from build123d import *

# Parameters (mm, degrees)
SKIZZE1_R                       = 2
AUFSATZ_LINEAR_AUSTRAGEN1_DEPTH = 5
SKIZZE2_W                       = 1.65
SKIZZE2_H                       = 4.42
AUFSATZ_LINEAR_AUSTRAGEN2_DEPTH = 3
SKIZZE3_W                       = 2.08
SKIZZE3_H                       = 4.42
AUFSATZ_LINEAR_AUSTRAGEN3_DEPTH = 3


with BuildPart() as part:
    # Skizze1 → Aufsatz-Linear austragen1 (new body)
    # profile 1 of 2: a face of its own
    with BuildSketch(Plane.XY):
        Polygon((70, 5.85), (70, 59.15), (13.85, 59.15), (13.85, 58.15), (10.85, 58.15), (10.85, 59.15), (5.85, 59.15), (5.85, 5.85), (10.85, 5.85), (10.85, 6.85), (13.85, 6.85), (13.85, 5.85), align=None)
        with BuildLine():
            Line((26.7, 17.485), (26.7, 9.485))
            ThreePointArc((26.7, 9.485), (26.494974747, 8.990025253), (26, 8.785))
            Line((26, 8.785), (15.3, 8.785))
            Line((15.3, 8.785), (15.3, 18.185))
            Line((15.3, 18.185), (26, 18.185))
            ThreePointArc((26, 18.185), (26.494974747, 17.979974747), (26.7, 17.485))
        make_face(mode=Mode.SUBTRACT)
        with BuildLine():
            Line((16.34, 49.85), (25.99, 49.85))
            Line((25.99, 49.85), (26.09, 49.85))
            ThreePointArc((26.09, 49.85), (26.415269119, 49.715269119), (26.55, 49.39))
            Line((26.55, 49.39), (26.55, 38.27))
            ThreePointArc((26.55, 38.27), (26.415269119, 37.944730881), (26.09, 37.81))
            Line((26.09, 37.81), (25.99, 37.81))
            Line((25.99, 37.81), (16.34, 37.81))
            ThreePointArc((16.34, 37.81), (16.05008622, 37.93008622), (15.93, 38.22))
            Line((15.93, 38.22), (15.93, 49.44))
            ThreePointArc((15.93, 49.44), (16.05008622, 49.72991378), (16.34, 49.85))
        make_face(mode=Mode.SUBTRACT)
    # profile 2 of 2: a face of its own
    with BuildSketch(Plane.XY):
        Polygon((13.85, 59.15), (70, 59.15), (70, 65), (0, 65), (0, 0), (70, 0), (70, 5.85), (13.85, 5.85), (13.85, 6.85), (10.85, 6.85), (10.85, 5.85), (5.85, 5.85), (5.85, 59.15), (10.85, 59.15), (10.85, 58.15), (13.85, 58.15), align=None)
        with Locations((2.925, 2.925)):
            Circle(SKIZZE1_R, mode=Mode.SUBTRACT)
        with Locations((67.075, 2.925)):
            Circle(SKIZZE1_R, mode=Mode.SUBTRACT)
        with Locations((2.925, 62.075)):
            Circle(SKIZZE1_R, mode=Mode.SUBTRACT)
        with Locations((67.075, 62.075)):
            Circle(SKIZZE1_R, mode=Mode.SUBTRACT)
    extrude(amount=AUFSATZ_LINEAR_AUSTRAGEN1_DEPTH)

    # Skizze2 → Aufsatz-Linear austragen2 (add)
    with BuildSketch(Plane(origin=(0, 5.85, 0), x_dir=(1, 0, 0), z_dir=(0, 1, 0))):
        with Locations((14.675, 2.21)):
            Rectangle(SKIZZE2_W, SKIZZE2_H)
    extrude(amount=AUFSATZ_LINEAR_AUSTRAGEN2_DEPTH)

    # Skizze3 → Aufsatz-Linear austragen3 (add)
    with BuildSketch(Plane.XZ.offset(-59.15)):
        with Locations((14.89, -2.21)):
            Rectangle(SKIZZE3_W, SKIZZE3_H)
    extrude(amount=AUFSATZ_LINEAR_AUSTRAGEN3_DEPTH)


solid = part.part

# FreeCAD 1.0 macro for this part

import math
import FreeCAD as App
import Part
import Sketcher
from FreeCAD import Vector


def add_polygon(sketch, points):
    """Adds a closed chain of lines whose ends are joined by coincident constraints."""
    first, n = sketch.GeometryCount, len(points)
    for a, b in zip(points, points[1:] + points[:1]):
        sketch.addGeometry(Part.LineSegment(App.Vector(*a, 0), App.Vector(*b, 0)), False)
    for i in range(n):
        sketch.addConstraint(Sketcher.Constraint("Coincident", first + i, 2, first + (i + 1) % n, 1))

doc = App.newDocument("Part")
params = doc.addObject("Spreadsheet::Sheet", "Params")
for row, (alias, value) in enumerate([
    ("sketch1_diameter", "4 mm"),
    ("sketch1_radius", "0.7 mm"),
    ("sketch1_width", "70 mm"),
    ("sketch1_height", "65 mm"),
    ("sketch1_height2", "8 mm"),
    ("pad1_length", "5 mm"),
    ("sketch2_width", "1.65 mm"),
    ("sketch2_height", "4.42 mm"),
    ("pad2_length", "3 mm"),
    ("sketch3_width", "2.08 mm"),
    ("sketch3_height", "4.42 mm"),
    ("pad3_length", "3 mm"),
], start=1):
    params.set(f"A{row}", alias)
    params.set(f"B{row}", "=" + value)
    params.setAlias(f"B{row}", alias)

body = doc.addObject("PartDesign::Body", "Body")

# Sketch on XY plane
sketch1 = doc.addObject("Sketcher::SketchObject", "Sketch")
body.addObject(sketch1)
sketch1.AttachmentSupport = (doc.XY_Plane, [""])
sketch1.MapMode = "FlatFace"
add_polygon(sketch1, [(70, 65), (0, 65), (0, 0), (70, 0)])  # lines 0-3
sketch1.addGeometry(Part.ArcOfCircle(Part.Circle(Vector(26, 17.49, 0), Vector(0, 0, 1), 0.7), math.radians(0), math.radians(90)), False)  # 4
sketch1.addGeometry(Part.LineSegment(Vector(26.7, 17.48, 0), Vector(26.7, 9.48, 0)), False)  # 5
sketch1.addGeometry(Part.ArcOfCircle(Part.Circle(Vector(26, 9.48, 0), Vector(0, 0, 1), 0.7), math.radians(-90), math.radians(0)), False)  # 6
sketch1.addGeometry(Part.LineSegment(Vector(26, 8.79, 0), Vector(15.3, 8.79, 0)), False)  # 7
sketch1.addGeometry(Part.LineSegment(Vector(15.3, 8.79, 0), Vector(15.3, 18.18, 0)), False)  # 8
sketch1.addGeometry(Part.LineSegment(Vector(15.3, 18.18, 0), Vector(26, 18.18, 0)), False)  # 9
sketch1.addGeometry(Part.ArcOfCircle(Part.Circle(Vector(16.34, 49.44, 0), Vector(0, 0, 1), 0.41), math.radians(90), math.radians(180)), False)  # 10
sketch1.addGeometry(Part.LineSegment(Vector(16.34, 49.85, 0), Vector(26.09, 49.85, 0)), False)  # 11
sketch1.addGeometry(Part.ArcOfCircle(Part.Circle(Vector(26.09, 49.39, 0), Vector(0, 0, 1), 0.46), math.radians(0), math.radians(90)), False)  # 12
sketch1.addGeometry(Part.LineSegment(Vector(26.55, 49.39, 0), Vector(26.55, 38.27, 0)), False)  # 13
sketch1.addGeometry(Part.ArcOfCircle(Part.Circle(Vector(26.09, 38.27, 0), Vector(0, 0, 1), 0.46), math.radians(-90), math.radians(0)), False)  # 14
sketch1.addGeometry(Part.LineSegment(Vector(26.09, 37.81, 0), Vector(16.34, 37.81, 0)), False)  # 15
sketch1.addGeometry(Part.ArcOfCircle(Part.Circle(Vector(16.34, 38.22, 0), Vector(0, 0, 1), 0.41), math.radians(-180), math.radians(-90)), False)  # 16
sketch1.addGeometry(Part.LineSegment(Vector(15.93, 38.22, 0), Vector(15.93, 49.44, 0)), False)  # 17
sketch1.addGeometry(Part.Circle(Vector(2.92, 62.08, 0), Vector(0, 0, 1), 2), False)  # 18
sketch1.addGeometry(Part.Circle(Vector(2.92, 2.92, 0), Vector(0, 0, 1), 2), False)  # 19
sketch1.addGeometry(Part.Circle(Vector(67.08, 2.92, 0), Vector(0, 0, 1), 2), False)  # 20
sketch1.addGeometry(Part.Circle(Vector(67.08, 62.08, 0), Vector(0, 0, 1), 2), False)  # 21
sketch1.addConstraint([
    Sketcher.Constraint("Tangent", 4, 1, 5, 1),
    Sketcher.Constraint("Tangent", 5, 2, 6, 2),
    Sketcher.Constraint("Tangent", 6, 1, 7, 1),
    Sketcher.Constraint("Coincident", 7, 2, 8, 1),
    Sketcher.Constraint("Coincident", 8, 2, 9, 1),
    Sketcher.Constraint("Tangent", 9, 2, 4, 2),
    Sketcher.Constraint("Tangent", 10, 1, 11, 1),
    Sketcher.Constraint("Tangent", 11, 2, 12, 2),
    Sketcher.Constraint("Tangent", 12, 1, 13, 1),
    Sketcher.Constraint("Tangent", 13, 2, 14, 2),
    Sketcher.Constraint("Tangent", 14, 1, 15, 1),
    Sketcher.Constraint("Tangent", 15, 2, 16, 2),
    Sketcher.Constraint("Tangent", 16, 1, 17, 1),
    Sketcher.Constraint("Tangent", 17, 2, 10, 2),
    Sketcher.Constraint("Horizontal", 0),
    Sketcher.Constraint("Vertical", 1),
    Sketcher.Constraint("Horizontal", 2),
    Sketcher.Constraint("Vertical", 3),
    Sketcher.Constraint("Vertical", 5),
    Sketcher.Constraint("Horizontal", 7),
    Sketcher.Constraint("Vertical", 8),
    Sketcher.Constraint("Horizontal", 9),
    Sketcher.Constraint("Horizontal", 11),
    Sketcher.Constraint("Vertical", 13),
    Sketcher.Constraint("Horizontal", 15),
    Sketcher.Constraint("Vertical", 17),
    Sketcher.Constraint("Coincident", 1, 2, -1, 1),
    Sketcher.Constraint("Equal", 4, 6),
    Sketcher.Constraint("Equal", 12, 14),
    Sketcher.Constraint("Equal", 10, 16),
    Sketcher.Constraint("Equal", 18, 19),
    Sketcher.Constraint("Equal", 19, 20),
    Sketcher.Constraint("Equal", 20, 21),
    Sketcher.Constraint("Horizontal", 19, 3, 20, 3),
    Sketcher.Constraint("Horizontal", 18, 3, 21, 3),
    Sketcher.Constraint("Vertical", 18, 3, 19, 3),
    Sketcher.Constraint("Vertical", 20, 3, 21, 3),
    Sketcher.Constraint("Diameter", 18, 4.0),
    Sketcher.Constraint("Radius", 4, 0.7),
    Sketcher.Constraint("DistanceX", 0, 2, 0, 1, 70.0),
    Sketcher.Constraint("DistanceY", 1, 2, 1, 1, 65.0),
    Sketcher.Constraint("DistanceY", 5, 2, 5, 1, 8.0),
    Sketcher.Constraint("Radius", 10, 0.41),
    Sketcher.Constraint("Radius", 12, 0.46),
    Sketcher.Constraint("DistanceX", 7, 2, 7, 1, 10.7),
    Sketcher.Constraint("DistanceX", -1, 1, 4, 3, 26.0),
    Sketcher.Constraint("DistanceX", 11, 1, 11, 2, 9.75),
    Sketcher.Constraint("DistanceY", 13, 2, 13, 1, 11.12),
    Sketcher.Constraint("DistanceX", -1, 1, 10, 3, 16.34),
    Sketcher.Constraint("DistanceY", -1, 1, 10, 3, 49.44),
    Sketcher.Constraint("DistanceY", 4, 3, 18, 3, 44.59),
    Sketcher.Constraint("DistanceY", 19, 3, 6, 3, 6.56),
    Sketcher.Constraint("DistanceY", -1, 1, 4, 3, 17.485),
    Sketcher.Constraint("DistanceX", -1, 1, 18, 3, 2.925),
    Sketcher.Constraint("DistanceX", -1, 1, 20, 3, 67.075),
])
sketch1.setExpression("Constraints[41]", "Params.sketch1_diameter")
sketch1.setExpression("Constraints[42]", "Params.sketch1_radius")
sketch1.setExpression("Constraints[43]", "Params.sketch1_width")
sketch1.setExpression("Constraints[44]", "Params.sketch1_height")
sketch1.setExpression("Constraints[45]", "Params.sketch1_height2")
pad1 = doc.addObject("PartDesign::Pad", "Pad")
body.addObject(pad1)
pad1.Profile = sketch1
pad1.setExpression("Length", "Params.pad1_length")

# Sketch on XZ plane
sketch2 = doc.addObject("Sketcher::SketchObject", "Sketch001")
body.addObject(sketch2)
sketch2.AttachmentSupport = (doc.XZ_Plane, [""])
sketch2.MapMode = "FlatFace"
sketch2.AttachmentOffset = App.Placement(Vector(0, 0, -5.85), App.Rotation())
add_polygon(sketch2, [(13.8, -4.4), (13.8, 0), (15.5, 0), (15.5, -4.4)])  # lines 0-3
sketch2.addConstraint([
    Sketcher.Constraint("Vertical", 0),
    Sketcher.Constraint("Horizontal", 1),
    Sketcher.Constraint("Vertical", 2),
    Sketcher.Constraint("Horizontal", 3),
    Sketcher.Constraint("PointOnObject", 0, 2, -1),
    Sketcher.Constraint("DistanceX", 1, 1, 1, 2, 1.65),
    Sketcher.Constraint("DistanceY", 0, 1, 0, 2, 4.42),
    Sketcher.Constraint("DistanceX", -1, 1, 1, 2, 15.5),
])
sketch2.setExpression("Constraints[9]", "Params.sketch2_width")
sketch2.setExpression("Constraints[10]", "Params.sketch2_height")
pad2 = doc.addObject("PartDesign::Pad", "Pad001")
body.addObject(pad2)
pad2.Profile = sketch2
pad2.setExpression("Length", "Params.pad2_length")
pad2.Reversed = True

# Sketch on XZ plane
sketch3 = doc.addObject("Sketcher::SketchObject", "Sketch002")
body.addObject(sketch3)
sketch3.AttachmentSupport = (doc.XZ_Plane, [""])
sketch3.MapMode = "FlatFace"
sketch3.AttachmentOffset = App.Placement(Vector(0, 0, -59.15), App.Rotation())
add_polygon(sketch3, [(13.8, 0), (13.8, -4.4), (15.9, -4.4), (15.9, 0)])  # lines 0-3
sketch3.addConstraint([
    Sketcher.Constraint("Vertical", 0),
    Sketcher.Constraint("Horizontal", 1),
    Sketcher.Constraint("Vertical", 2),
    Sketcher.Constraint("Horizontal", 3),
    Sketcher.Constraint("PointOnObject", 2, 2, -1),
    Sketcher.Constraint("DistanceX", 1, 1, 1, 2, 2.08),
    Sketcher.Constraint("DistanceY", 0, 2, 0, 1, 4.42),
    Sketcher.Constraint("DistanceX", -1, 1, 0, 2, 13.85),
])
sketch3.setExpression("Constraints[9]", "Params.sketch3_width")
sketch3.setExpression("Constraints[10]", "Params.sketch3_height")
pad3 = doc.addObject("PartDesign::Pad", "Pad002")
body.addObject(pad3)
pad3.Profile = sketch3
pad3.setExpression("Length", "Params.pad3_length")

doc.recompute()
